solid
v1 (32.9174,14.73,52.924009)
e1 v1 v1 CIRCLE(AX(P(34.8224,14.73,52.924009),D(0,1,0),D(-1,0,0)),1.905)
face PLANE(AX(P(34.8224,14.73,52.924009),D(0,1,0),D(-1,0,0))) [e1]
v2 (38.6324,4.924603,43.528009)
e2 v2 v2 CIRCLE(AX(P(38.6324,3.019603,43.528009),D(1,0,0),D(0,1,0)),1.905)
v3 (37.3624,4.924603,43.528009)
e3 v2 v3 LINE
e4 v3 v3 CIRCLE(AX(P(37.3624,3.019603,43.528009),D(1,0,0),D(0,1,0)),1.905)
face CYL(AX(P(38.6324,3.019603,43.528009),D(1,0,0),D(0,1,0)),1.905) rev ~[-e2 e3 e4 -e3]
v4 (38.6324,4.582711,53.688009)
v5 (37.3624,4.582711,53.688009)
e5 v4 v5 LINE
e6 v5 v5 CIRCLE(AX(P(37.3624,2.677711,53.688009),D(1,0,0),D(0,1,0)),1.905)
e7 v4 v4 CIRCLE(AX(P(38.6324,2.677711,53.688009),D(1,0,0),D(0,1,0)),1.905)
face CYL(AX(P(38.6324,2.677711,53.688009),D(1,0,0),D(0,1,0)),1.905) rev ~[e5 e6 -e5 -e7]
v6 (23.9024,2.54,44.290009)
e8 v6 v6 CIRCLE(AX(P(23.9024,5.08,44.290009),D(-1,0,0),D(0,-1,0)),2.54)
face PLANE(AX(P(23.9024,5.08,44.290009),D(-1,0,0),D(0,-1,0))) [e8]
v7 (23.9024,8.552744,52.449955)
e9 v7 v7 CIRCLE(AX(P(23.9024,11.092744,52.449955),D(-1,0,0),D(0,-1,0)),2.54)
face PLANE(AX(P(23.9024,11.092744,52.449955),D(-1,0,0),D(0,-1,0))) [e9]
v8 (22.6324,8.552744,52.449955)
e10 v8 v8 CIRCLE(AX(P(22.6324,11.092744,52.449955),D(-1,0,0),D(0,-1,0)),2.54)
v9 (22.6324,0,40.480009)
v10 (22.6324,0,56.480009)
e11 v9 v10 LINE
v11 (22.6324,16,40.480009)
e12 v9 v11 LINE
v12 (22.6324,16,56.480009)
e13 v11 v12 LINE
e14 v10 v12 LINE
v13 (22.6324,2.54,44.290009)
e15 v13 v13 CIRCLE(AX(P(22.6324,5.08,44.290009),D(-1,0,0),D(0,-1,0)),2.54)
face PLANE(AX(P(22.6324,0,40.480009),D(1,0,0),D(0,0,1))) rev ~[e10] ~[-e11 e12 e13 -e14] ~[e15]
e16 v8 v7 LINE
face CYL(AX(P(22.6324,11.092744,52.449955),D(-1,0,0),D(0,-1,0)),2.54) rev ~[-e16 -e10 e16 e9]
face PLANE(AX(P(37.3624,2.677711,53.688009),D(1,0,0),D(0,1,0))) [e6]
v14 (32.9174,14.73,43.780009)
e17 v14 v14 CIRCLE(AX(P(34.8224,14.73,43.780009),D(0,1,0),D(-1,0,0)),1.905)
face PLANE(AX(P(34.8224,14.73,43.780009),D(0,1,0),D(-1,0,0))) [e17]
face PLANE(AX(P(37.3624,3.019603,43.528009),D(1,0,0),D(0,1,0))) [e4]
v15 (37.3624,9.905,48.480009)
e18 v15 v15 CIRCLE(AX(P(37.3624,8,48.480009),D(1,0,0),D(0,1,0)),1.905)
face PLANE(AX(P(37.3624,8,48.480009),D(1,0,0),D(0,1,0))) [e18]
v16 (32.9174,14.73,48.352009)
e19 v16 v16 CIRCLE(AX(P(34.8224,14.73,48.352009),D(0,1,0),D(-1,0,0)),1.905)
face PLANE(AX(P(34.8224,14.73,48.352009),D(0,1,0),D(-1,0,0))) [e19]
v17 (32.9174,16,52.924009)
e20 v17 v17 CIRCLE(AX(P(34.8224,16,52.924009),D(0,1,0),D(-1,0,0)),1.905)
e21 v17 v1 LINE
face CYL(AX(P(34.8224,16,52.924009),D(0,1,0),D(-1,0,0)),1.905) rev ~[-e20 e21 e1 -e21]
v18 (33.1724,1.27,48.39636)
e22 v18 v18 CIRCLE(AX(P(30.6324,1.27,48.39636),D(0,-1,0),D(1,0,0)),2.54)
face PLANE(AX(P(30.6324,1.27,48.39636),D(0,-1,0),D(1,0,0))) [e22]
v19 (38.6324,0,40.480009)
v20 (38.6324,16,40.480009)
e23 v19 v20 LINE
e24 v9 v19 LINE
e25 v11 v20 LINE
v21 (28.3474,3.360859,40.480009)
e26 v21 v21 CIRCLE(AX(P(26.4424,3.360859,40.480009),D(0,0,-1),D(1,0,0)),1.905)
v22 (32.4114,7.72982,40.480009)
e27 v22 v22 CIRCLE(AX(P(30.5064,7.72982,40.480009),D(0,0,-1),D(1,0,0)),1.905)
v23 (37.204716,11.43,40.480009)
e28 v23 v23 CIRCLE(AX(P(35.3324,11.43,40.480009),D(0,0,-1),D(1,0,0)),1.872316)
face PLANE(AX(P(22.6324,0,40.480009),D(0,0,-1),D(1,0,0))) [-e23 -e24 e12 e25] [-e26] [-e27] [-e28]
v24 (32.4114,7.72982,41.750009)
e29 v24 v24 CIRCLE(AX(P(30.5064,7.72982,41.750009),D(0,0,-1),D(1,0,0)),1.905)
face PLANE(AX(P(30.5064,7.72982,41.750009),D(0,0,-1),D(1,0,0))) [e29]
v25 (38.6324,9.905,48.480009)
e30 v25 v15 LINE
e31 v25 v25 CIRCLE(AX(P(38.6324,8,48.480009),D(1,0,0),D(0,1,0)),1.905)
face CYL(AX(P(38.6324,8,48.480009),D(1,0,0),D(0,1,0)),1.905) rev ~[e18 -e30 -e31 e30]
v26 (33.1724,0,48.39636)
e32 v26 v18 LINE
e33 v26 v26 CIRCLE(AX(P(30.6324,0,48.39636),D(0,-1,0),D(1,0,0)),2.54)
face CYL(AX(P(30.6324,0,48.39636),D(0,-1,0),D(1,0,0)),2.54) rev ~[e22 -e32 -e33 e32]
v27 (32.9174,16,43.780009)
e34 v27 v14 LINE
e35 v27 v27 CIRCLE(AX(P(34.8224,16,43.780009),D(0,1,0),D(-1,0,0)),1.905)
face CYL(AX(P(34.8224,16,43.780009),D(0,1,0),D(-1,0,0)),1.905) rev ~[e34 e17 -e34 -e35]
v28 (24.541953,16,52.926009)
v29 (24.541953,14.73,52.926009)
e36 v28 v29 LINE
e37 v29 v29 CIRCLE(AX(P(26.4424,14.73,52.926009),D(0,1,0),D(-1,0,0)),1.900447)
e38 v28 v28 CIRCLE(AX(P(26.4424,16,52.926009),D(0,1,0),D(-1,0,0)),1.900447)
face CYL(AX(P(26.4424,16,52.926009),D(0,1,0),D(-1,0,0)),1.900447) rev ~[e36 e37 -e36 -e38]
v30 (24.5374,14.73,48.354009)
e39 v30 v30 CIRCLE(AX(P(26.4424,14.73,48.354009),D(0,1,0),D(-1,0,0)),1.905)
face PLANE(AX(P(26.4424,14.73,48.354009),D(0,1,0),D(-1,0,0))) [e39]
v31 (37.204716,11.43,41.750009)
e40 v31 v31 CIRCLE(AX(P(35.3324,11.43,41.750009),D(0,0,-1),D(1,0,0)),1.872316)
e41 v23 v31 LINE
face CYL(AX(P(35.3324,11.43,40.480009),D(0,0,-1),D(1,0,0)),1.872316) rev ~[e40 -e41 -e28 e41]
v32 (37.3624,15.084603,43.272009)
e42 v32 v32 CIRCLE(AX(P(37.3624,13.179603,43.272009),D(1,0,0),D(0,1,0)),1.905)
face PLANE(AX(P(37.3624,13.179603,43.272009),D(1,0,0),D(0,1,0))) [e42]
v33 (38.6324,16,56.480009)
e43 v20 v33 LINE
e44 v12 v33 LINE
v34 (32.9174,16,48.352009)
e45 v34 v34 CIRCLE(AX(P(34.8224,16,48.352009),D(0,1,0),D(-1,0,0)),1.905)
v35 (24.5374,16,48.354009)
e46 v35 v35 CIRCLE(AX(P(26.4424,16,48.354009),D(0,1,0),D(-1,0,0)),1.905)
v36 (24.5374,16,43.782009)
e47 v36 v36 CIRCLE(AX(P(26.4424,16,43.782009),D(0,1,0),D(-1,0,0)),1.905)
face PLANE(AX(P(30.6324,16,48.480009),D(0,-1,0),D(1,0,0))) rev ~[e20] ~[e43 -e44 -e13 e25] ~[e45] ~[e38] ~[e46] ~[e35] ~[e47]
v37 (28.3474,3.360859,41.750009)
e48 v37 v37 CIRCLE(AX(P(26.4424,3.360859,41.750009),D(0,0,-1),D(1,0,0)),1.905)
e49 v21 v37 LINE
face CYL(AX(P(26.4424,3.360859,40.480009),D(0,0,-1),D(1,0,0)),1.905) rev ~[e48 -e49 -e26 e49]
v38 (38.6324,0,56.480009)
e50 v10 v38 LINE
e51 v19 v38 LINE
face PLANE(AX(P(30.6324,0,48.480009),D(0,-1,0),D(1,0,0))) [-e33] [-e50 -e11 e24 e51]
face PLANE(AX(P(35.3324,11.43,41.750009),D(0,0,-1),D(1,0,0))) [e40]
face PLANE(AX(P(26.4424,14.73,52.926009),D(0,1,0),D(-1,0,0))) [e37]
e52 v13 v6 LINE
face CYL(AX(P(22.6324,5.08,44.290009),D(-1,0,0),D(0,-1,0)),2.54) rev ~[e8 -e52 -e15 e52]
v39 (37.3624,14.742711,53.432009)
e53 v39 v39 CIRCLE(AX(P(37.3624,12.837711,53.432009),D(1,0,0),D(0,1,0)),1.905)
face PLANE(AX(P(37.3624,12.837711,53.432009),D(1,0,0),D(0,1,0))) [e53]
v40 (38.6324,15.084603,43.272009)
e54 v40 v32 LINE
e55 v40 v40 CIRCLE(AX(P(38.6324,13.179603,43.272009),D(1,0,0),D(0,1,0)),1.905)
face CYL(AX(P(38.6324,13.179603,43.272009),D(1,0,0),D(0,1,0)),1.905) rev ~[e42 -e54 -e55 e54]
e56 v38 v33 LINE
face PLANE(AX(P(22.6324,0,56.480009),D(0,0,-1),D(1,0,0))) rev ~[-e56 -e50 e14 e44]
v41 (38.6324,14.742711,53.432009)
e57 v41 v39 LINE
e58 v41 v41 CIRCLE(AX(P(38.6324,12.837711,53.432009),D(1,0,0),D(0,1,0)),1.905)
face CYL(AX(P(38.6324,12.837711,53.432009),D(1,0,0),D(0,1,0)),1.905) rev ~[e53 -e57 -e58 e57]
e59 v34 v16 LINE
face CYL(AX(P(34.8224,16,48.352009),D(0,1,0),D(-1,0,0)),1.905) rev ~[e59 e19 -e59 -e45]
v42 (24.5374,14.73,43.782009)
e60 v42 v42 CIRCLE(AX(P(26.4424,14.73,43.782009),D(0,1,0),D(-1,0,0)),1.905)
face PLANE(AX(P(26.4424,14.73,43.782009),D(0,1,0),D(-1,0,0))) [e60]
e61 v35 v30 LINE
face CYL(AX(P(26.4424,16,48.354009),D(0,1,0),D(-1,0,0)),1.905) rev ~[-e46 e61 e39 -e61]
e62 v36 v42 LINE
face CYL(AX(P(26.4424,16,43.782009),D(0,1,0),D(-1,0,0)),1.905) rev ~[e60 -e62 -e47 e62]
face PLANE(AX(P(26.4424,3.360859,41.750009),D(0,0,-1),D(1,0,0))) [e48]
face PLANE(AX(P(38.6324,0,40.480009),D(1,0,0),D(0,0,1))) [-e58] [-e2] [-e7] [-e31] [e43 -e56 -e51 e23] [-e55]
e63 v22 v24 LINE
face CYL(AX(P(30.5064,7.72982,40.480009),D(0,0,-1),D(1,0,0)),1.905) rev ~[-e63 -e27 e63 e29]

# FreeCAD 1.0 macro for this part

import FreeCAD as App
import Part
import Sketcher
Q = App.Units.Quantity


def add_polygon(sketch, points):
    """Adds a closed chain of lines whose ends are joined by coincident constraints."""
    first, n = sketch.GeometryCount, len(points)
    for a, b in zip(points, points[1:] + points[:1]):
        sketch.addGeometry(Part.LineSegment(App.Vector(*a, 0), App.Vector(*b, 0)), False)
    for i in range(n):
        sketch.addConstraint(Sketcher.Constraint("Coincident", first + i, 2, first + (i + 1) % n, 1))

doc = App.newDocument("Part")
body = doc.addObject("PartDesign::Body", "Body")

# Sketch on XZ plane
sketch1 = body.newObject("Sketcher::SketchObject", "Sketch")
sketch1.AttachmentSupport = (doc.getObject("XZ_Plane"), [""])
sketch1.MapMode = "FlatFace"
add_polygon(sketch1, [(23, 56), (23, 40), (39, 40), (39, 56)])  # lines 0-3
sketch1.addConstraint(Sketcher.Constraint("Vertical", 0))
sketch1.addConstraint(Sketcher.Constraint("Horizontal", 1))
sketch1.addConstraint(Sketcher.Constraint("Vertical", 2))
sketch1.addConstraint(Sketcher.Constraint("Horizontal", 3))
sketch1.addConstraint(Sketcher.Constraint("Equal", 3, 0))
sketch1.addConstraint(Sketcher.Constraint("DistanceX", 1, 1, 1, 2, Q("16 mm")))
sketch1.addConstraint(Sketcher.Constraint("DistanceX", -1, 1, 0, 2, Q("22.6324 mm")))
sketch1.addConstraint(Sketcher.Constraint("DistanceY", -1, 1, 0, 2, Q("40.480009 mm")))
pad1 = body.newObject("PartDesign::Pad", "Pad")
pad1.Profile = sketch1
pad1.Length = 16
pad1.Reversed = True

# Sketch on XZ plane
sketch2 = body.newObject("Sketcher::SketchObject", "Sketch001")
sketch2.AttachmentSupport = (doc.getObject("XZ_Plane"), [""])
sketch2.MapMode = "FlatFace"
sketch2.addGeometry(Part.Circle(App.Vector(30.63, 48.4, 0), App.Vector(0, 0, 1), 2.54), False)
sketch2.addGeometry(Part.Circle(App.Vector(30.63, 48.4, 0), App.Vector(0, 0, 1), 0.08), False)
sketch2.addConstraint(Sketcher.Constraint("Coincident", 1, 3, 0, 3))
sketch2.addConstraint(Sketcher.Constraint("Diameter", 0, Q("0.2 in")))
sketch2.addConstraint(Sketcher.Constraint("DistanceX", -1, 1, 0, 3, Q("1.206 in")))
sketch2.addConstraint(Sketcher.Constraint("Diameter", 1, Q("0.167298 mm")))
sketch2.addConstraint(Sketcher.Constraint("DistanceY", -1, 1, 0, 3, Q("48.39636 mm")))
pocket1 = body.newObject("PartDesign::Pocket", "Pocket")
pocket1.Profile = sketch2
pocket1.Length = Q("0.05 in")

# Sketch on XZ plane
sketch3 = body.newObject("Sketcher::SketchObject", "Sketch002")
sketch3.AttachmentSupport = (doc.getObject("XZ_Plane"), [""])
sketch3.MapMode = "FlatFace"
sketch3.addGeometry(Part.Circle(App.Vector(30.63, 48.4, 0), App.Vector(0, 0, 1), 0.08), False)
sketch3.addConstraint(Sketcher.Constraint("DistanceX", -1, 1, 0, 3, Q("1.206 in")))
sketch3.addConstraint(Sketcher.Constraint("Diameter", 0, Q("0.167298 mm")))
sketch3.addConstraint(Sketcher.Constraint("DistanceY", -1, 1, 0, 3, Q("48.39636 mm")))
pocket2 = body.newObject("PartDesign::Pocket", "Pocket001")
pocket2.Profile = sketch3
pocket2.Length = Q("0.05 in")

# Sketch on YZ plane
sketch4 = body.newObject("Sketcher::SketchObject", "Sketch003")
sketch4.AttachmentSupport = (doc.getObject("YZ_Plane"), [""])
sketch4.MapMode = "FlatFace"
sketch4.AttachmentOffset = App.Placement(App.Vector(0, 0, 22.6324), App.Rotation())
sketch4.addGeometry(Part.Circle(App.Vector(11.1, 52.4, 0), App.Vector(0, 0, 1), 2.5), False)
sketch4.addConstraint(Sketcher.Constraint("Diameter", 0, Q("0.2 in")))
sketch4.addConstraint(Sketcher.Constraint("DistanceX", -1, 1, 0, 3, Q("11.092744 mm")))
sketch4.addConstraint(Sketcher.Constraint("DistanceY", -1, 1, 0, 3, Q("52.449955 mm")))
pocket3 = body.newObject("PartDesign::Pocket", "Pocket002")
pocket3.Profile = sketch4
pocket3.Length = Q("0.05 in")
pocket3.Reversed = True

# Sketch on YZ plane
sketch5 = body.newObject("Sketcher::SketchObject", "Sketch004")
sketch5.AttachmentSupport = (doc.getObject("YZ_Plane"), [""])
sketch5.MapMode = "FlatFace"
sketch5.AttachmentOffset = App.Placement(App.Vector(0, 0, 22.6324), App.Rotation())
sketch5.addGeometry(Part.Circle(App.Vector(11.1, 52.4, 0), App.Vector(0, 0, 1), 2.5), False)
sketch5.addGeometry(Part.Circle(App.Vector(5.1, 44.3, 0), App.Vector(0, 0, 1), 2.5), False)
sketch5.addConstraint(Sketcher.Constraint("Equal", 0, 1))
sketch5.addConstraint(Sketcher.Constraint("Diameter", 0, Q("0.2 in")))
sketch5.addConstraint(Sketcher.Constraint("DistanceX", -1, 1, 1, 3, Q("0.2 in")))
sketch5.addConstraint(Sketcher.Constraint("DistanceY", -1, 1, 1, 3, Q("44.290009 mm")))
sketch5.addConstraint(Sketcher.Constraint("DistanceX", -1, 1, 0, 3, Q("11.092744 mm")))
sketch5.addConstraint(Sketcher.Constraint("DistanceY", -1, 1, 0, 3, Q("52.449955 mm")))
pocket4 = body.newObject("PartDesign::Pocket", "Pocket003")
pocket4.Profile = sketch5
pocket4.Length = Q("0.05 in")
pocket4.Reversed = True

# Sketch on XZ plane
sketch6 = body.newObject("Sketcher::SketchObject", "Sketch005")
sketch6.AttachmentSupport = (doc.getObject("XZ_Plane"), [""])
sketch6.MapMode = "FlatFace"
sketch6.AttachmentOffset = App.Placement(App.Vector(0, 0, -16), App.Rotation())
sketch6.addGeometry(Part.Circle(App.Vector(34.8, 52.9, 0), App.Vector(0, 0, 1), 1.9), False)
sketch6.addGeometry(Part.Circle(App.Vector(34.8, 48.4, 0), App.Vector(0, 0, 1), 1.9), False)
sketch6.addGeometry(Part.Circle(App.Vector(34.8, 43.8, 0), App.Vector(0, 0, 1), 1.9), False)
sketch6.addGeometry(Part.Circle(App.Vector(26.4, 52.9, 0), App.Vector(0, 0, 1), 1.9), False)
sketch6.addGeometry(Part.Circle(App.Vector(26.4, 43.8, 0), App.Vector(0, 0, 1), 1.9), False)
sketch6.addGeometry(Part.Circle(App.Vector(26.4, 48.4, 0), App.Vector(0, 0, 1), 1.9), False)
sketch6.addConstraint(Sketcher.Constraint("Equal", 0, 1))
sketch6.addConstraint(Sketcher.Constraint("Equal", 1, 2))
sketch6.addConstraint(Sketcher.Constraint("Equal", 2, 4))
sketch6.addConstraint(Sketcher.Constraint("Equal", 4, 5))
sketch6.addConstraint(Sketcher.Constraint("Vertical", 0, 3, 1, 3))
sketch6.addConstraint(Sketcher.Constraint("Vertical", 1, 3, 2, 3))
sketch6.addConstraint(Sketcher.Constraint("Vertical", 3, 3, 4, 3))
sketch6.addConstraint(Sketcher.Constraint("Vertical", 4, 3, 5, 3))
sketch6.addConstraint(Sketcher.Constraint("Diameter", 0, Q("0.15 in")))
sketch6.addConstraint(Sketcher.Constraint("DistanceY", 1, 3, 0, 3, Q("0.18 in")))
sketch6.addConstraint(Sketcher.Constraint("DistanceY", 2, 3, 1, 3, Q("0.18 in")))
sketch6.addConstraint(Sketcher.Constraint("DistanceY", 4, 3, 3, 3, Q("0.36 in")))
sketch6.addConstraint(Sketcher.Constraint("DistanceY", 4, 3, 5, 3, Q("0.18 in")))
sketch6.addConstraint(Sketcher.Constraint("Diameter", 3, Q("3.800894 mm")))
sketch6.addConstraint(Sketcher.Constraint("DistanceX", -1, 1, 0, 3, Q("34.8224 mm")))
sketch6.addConstraint(Sketcher.Constraint("DistanceX", -1, 1, 3, 3, Q("26.4424 mm")))
sketch6.addConstraint(Sketcher.Constraint("DistanceY", 0, 3, 3, 3, Q("0.002 mm")))
sketch6.addConstraint(Sketcher.Constraint("DistanceY", -1, 1, 0, 3, Q("52.924009 mm")))
pocket5 = body.newObject("PartDesign::Pocket", "Pocket004")
pocket5.Profile = sketch6
pocket5.Length = Q("0.05 in")
pocket5.Reversed = True

# Sketch on YZ plane
sketch7 = body.newObject("Sketcher::SketchObject", "Sketch006")
sketch7.AttachmentSupport = (doc.getObject("YZ_Plane"), [""])
sketch7.MapMode = "FlatFace"
sketch7.AttachmentOffset = App.Placement(App.Vector(0, 0, 38.6324), App.Rotation())
sketch7.addGeometry(Part.Circle(App.Vector(8, 48.5, 0), App.Vector(0, 0, 1), 1.9), False)
sketch7.addGeometry(Part.Circle(App.Vector(2.7, 53.7, 0), App.Vector(0, 0, 1), 1.9), False)
sketch7.addGeometry(Part.Circle(App.Vector(12.8, 53.4, 0), App.Vector(0, 0, 1), 1.9), False)
sketch7.addGeometry(Part.Circle(App.Vector(13.2, 43.3, 0), App.Vector(0, 0, 1), 1.9), False)
sketch7.addGeometry(Part.Circle(App.Vector(3, 43.5, 0), App.Vector(0, 0, 1), 1.9), False)
sketch7.addConstraint(Sketcher.Constraint("Equal", 0, 1))
sketch7.addConstraint(Sketcher.Constraint("Equal", 1, 2))
sketch7.addConstraint(Sketcher.Constraint("Equal", 2, 3))
sketch7.addConstraint(Sketcher.Constraint("Equal", 3, 4))
sketch7.addConstraint(Sketcher.Constraint("Diameter", 0, Q("0.15 in")))
sketch7.addConstraint(Sketcher.Constraint("DistanceX", 1, 3, 2, 3, Q("0.4 in")))
sketch7.addConstraint(Sketcher.Constraint("DistanceY", 3, 3, 2, 3, Q("0.4 in")))
sketch7.addConstraint(Sketcher.Constraint("DistanceX", 4, 3, 3, 3, Q("0.4 in")))
sketch7.addConstraint(Sketcher.Constraint("DistanceY", 4, 3, 1, 3, Q("0.4 in")))
sketch7.addConstraint(Sketcher.Constraint("DistanceX", -1, 1, 0, 3, Q("8 mm")))
sketch7.addConstraint(Sketcher.Constraint("DistanceY", 0, 3, 1, 3, Q("5.208 mm")))
sketch7.addConstraint(Sketcher.Constraint("DistanceY", 0, 3, 2, 3, Q("4.952 mm")))
sketch7.addConstraint(Sketcher.Constraint("DistanceY", -1, 1, 0, 3, Q("48.480009 mm")))
sketch7.addConstraint(Sketcher.Constraint("DistanceX", -1, 1, 1, 3, Q("2.677711 mm")))
sketch7.addConstraint(Sketcher.Constraint("DistanceX", 2, 3, 3, 3, Q("0.341892 mm")))
pocket6 = body.newObject("PartDesign::Pocket", "Pocket005")
pocket6.Profile = sketch7
pocket6.Length = Q("0.05 in")

# Sketch on XY plane
sketch8 = body.newObject("Sketcher::SketchObject", "Sketch007")
sketch8.AttachmentSupport = (doc.getObject("XY_Plane"), [""])
sketch8.MapMode = "FlatFace"
sketch8.AttachmentOffset = App.Placement(App.Vector(0, 0, 40.480009), App.Rotation())
sketch8.addGeometry(Part.Circle(App.Vector(35.3, 11.4, 0), App.Vector(0, 0, 1), 1.9), False)
sketch8.addGeometry(Part.Circle(App.Vector(30.5, 7.7, 0), App.Vector(0, 0, 1), 1.9), False)
sketch8.addGeometry(Part.Circle(App.Vector(26.4, 3.4, 0), App.Vector(0, 0, 1), 1.9), False)
sketch8.addConstraint(Sketcher.Constraint("Equal", 1, 2))
sketch8.addConstraint(Sketcher.Constraint("Diameter", 1, Q("0.15 in")))
sketch8.addConstraint(Sketcher.Constraint("DistanceY", -1, 1, 0, 3, Q("0.45 in")))
sketch8.addConstraint(Sketcher.Constraint("DistanceX", 1, 3, 0, 3, Q("0.19 in")))
sketch8.addConstraint(Sketcher.Constraint("DistanceX", 2, 3, 1, 3, Q("0.16 in")))
sketch8.addConstraint(Sketcher.Constraint("Diameter", 0, Q("3.744632 mm")))
sketch8.addConstraint(Sketcher.Constraint("DistanceX", -1, 1, 0, 3, Q("35.3324 mm")))
sketch8.addConstraint(Sketcher.Constraint("DistanceY", -1, 1, 1, 3, Q("7.72982 mm")))
sketch8.addConstraint(Sketcher.Constraint("DistanceY", -1, 1, 2, 3, Q("3.360859 mm")))
pocket7 = body.newObject("PartDesign::Pocket", "Pocket006")
pocket7.Profile = sketch8
pocket7.Length = Q("0.05 in")
pocket7.Reversed = True

doc.recompute()
